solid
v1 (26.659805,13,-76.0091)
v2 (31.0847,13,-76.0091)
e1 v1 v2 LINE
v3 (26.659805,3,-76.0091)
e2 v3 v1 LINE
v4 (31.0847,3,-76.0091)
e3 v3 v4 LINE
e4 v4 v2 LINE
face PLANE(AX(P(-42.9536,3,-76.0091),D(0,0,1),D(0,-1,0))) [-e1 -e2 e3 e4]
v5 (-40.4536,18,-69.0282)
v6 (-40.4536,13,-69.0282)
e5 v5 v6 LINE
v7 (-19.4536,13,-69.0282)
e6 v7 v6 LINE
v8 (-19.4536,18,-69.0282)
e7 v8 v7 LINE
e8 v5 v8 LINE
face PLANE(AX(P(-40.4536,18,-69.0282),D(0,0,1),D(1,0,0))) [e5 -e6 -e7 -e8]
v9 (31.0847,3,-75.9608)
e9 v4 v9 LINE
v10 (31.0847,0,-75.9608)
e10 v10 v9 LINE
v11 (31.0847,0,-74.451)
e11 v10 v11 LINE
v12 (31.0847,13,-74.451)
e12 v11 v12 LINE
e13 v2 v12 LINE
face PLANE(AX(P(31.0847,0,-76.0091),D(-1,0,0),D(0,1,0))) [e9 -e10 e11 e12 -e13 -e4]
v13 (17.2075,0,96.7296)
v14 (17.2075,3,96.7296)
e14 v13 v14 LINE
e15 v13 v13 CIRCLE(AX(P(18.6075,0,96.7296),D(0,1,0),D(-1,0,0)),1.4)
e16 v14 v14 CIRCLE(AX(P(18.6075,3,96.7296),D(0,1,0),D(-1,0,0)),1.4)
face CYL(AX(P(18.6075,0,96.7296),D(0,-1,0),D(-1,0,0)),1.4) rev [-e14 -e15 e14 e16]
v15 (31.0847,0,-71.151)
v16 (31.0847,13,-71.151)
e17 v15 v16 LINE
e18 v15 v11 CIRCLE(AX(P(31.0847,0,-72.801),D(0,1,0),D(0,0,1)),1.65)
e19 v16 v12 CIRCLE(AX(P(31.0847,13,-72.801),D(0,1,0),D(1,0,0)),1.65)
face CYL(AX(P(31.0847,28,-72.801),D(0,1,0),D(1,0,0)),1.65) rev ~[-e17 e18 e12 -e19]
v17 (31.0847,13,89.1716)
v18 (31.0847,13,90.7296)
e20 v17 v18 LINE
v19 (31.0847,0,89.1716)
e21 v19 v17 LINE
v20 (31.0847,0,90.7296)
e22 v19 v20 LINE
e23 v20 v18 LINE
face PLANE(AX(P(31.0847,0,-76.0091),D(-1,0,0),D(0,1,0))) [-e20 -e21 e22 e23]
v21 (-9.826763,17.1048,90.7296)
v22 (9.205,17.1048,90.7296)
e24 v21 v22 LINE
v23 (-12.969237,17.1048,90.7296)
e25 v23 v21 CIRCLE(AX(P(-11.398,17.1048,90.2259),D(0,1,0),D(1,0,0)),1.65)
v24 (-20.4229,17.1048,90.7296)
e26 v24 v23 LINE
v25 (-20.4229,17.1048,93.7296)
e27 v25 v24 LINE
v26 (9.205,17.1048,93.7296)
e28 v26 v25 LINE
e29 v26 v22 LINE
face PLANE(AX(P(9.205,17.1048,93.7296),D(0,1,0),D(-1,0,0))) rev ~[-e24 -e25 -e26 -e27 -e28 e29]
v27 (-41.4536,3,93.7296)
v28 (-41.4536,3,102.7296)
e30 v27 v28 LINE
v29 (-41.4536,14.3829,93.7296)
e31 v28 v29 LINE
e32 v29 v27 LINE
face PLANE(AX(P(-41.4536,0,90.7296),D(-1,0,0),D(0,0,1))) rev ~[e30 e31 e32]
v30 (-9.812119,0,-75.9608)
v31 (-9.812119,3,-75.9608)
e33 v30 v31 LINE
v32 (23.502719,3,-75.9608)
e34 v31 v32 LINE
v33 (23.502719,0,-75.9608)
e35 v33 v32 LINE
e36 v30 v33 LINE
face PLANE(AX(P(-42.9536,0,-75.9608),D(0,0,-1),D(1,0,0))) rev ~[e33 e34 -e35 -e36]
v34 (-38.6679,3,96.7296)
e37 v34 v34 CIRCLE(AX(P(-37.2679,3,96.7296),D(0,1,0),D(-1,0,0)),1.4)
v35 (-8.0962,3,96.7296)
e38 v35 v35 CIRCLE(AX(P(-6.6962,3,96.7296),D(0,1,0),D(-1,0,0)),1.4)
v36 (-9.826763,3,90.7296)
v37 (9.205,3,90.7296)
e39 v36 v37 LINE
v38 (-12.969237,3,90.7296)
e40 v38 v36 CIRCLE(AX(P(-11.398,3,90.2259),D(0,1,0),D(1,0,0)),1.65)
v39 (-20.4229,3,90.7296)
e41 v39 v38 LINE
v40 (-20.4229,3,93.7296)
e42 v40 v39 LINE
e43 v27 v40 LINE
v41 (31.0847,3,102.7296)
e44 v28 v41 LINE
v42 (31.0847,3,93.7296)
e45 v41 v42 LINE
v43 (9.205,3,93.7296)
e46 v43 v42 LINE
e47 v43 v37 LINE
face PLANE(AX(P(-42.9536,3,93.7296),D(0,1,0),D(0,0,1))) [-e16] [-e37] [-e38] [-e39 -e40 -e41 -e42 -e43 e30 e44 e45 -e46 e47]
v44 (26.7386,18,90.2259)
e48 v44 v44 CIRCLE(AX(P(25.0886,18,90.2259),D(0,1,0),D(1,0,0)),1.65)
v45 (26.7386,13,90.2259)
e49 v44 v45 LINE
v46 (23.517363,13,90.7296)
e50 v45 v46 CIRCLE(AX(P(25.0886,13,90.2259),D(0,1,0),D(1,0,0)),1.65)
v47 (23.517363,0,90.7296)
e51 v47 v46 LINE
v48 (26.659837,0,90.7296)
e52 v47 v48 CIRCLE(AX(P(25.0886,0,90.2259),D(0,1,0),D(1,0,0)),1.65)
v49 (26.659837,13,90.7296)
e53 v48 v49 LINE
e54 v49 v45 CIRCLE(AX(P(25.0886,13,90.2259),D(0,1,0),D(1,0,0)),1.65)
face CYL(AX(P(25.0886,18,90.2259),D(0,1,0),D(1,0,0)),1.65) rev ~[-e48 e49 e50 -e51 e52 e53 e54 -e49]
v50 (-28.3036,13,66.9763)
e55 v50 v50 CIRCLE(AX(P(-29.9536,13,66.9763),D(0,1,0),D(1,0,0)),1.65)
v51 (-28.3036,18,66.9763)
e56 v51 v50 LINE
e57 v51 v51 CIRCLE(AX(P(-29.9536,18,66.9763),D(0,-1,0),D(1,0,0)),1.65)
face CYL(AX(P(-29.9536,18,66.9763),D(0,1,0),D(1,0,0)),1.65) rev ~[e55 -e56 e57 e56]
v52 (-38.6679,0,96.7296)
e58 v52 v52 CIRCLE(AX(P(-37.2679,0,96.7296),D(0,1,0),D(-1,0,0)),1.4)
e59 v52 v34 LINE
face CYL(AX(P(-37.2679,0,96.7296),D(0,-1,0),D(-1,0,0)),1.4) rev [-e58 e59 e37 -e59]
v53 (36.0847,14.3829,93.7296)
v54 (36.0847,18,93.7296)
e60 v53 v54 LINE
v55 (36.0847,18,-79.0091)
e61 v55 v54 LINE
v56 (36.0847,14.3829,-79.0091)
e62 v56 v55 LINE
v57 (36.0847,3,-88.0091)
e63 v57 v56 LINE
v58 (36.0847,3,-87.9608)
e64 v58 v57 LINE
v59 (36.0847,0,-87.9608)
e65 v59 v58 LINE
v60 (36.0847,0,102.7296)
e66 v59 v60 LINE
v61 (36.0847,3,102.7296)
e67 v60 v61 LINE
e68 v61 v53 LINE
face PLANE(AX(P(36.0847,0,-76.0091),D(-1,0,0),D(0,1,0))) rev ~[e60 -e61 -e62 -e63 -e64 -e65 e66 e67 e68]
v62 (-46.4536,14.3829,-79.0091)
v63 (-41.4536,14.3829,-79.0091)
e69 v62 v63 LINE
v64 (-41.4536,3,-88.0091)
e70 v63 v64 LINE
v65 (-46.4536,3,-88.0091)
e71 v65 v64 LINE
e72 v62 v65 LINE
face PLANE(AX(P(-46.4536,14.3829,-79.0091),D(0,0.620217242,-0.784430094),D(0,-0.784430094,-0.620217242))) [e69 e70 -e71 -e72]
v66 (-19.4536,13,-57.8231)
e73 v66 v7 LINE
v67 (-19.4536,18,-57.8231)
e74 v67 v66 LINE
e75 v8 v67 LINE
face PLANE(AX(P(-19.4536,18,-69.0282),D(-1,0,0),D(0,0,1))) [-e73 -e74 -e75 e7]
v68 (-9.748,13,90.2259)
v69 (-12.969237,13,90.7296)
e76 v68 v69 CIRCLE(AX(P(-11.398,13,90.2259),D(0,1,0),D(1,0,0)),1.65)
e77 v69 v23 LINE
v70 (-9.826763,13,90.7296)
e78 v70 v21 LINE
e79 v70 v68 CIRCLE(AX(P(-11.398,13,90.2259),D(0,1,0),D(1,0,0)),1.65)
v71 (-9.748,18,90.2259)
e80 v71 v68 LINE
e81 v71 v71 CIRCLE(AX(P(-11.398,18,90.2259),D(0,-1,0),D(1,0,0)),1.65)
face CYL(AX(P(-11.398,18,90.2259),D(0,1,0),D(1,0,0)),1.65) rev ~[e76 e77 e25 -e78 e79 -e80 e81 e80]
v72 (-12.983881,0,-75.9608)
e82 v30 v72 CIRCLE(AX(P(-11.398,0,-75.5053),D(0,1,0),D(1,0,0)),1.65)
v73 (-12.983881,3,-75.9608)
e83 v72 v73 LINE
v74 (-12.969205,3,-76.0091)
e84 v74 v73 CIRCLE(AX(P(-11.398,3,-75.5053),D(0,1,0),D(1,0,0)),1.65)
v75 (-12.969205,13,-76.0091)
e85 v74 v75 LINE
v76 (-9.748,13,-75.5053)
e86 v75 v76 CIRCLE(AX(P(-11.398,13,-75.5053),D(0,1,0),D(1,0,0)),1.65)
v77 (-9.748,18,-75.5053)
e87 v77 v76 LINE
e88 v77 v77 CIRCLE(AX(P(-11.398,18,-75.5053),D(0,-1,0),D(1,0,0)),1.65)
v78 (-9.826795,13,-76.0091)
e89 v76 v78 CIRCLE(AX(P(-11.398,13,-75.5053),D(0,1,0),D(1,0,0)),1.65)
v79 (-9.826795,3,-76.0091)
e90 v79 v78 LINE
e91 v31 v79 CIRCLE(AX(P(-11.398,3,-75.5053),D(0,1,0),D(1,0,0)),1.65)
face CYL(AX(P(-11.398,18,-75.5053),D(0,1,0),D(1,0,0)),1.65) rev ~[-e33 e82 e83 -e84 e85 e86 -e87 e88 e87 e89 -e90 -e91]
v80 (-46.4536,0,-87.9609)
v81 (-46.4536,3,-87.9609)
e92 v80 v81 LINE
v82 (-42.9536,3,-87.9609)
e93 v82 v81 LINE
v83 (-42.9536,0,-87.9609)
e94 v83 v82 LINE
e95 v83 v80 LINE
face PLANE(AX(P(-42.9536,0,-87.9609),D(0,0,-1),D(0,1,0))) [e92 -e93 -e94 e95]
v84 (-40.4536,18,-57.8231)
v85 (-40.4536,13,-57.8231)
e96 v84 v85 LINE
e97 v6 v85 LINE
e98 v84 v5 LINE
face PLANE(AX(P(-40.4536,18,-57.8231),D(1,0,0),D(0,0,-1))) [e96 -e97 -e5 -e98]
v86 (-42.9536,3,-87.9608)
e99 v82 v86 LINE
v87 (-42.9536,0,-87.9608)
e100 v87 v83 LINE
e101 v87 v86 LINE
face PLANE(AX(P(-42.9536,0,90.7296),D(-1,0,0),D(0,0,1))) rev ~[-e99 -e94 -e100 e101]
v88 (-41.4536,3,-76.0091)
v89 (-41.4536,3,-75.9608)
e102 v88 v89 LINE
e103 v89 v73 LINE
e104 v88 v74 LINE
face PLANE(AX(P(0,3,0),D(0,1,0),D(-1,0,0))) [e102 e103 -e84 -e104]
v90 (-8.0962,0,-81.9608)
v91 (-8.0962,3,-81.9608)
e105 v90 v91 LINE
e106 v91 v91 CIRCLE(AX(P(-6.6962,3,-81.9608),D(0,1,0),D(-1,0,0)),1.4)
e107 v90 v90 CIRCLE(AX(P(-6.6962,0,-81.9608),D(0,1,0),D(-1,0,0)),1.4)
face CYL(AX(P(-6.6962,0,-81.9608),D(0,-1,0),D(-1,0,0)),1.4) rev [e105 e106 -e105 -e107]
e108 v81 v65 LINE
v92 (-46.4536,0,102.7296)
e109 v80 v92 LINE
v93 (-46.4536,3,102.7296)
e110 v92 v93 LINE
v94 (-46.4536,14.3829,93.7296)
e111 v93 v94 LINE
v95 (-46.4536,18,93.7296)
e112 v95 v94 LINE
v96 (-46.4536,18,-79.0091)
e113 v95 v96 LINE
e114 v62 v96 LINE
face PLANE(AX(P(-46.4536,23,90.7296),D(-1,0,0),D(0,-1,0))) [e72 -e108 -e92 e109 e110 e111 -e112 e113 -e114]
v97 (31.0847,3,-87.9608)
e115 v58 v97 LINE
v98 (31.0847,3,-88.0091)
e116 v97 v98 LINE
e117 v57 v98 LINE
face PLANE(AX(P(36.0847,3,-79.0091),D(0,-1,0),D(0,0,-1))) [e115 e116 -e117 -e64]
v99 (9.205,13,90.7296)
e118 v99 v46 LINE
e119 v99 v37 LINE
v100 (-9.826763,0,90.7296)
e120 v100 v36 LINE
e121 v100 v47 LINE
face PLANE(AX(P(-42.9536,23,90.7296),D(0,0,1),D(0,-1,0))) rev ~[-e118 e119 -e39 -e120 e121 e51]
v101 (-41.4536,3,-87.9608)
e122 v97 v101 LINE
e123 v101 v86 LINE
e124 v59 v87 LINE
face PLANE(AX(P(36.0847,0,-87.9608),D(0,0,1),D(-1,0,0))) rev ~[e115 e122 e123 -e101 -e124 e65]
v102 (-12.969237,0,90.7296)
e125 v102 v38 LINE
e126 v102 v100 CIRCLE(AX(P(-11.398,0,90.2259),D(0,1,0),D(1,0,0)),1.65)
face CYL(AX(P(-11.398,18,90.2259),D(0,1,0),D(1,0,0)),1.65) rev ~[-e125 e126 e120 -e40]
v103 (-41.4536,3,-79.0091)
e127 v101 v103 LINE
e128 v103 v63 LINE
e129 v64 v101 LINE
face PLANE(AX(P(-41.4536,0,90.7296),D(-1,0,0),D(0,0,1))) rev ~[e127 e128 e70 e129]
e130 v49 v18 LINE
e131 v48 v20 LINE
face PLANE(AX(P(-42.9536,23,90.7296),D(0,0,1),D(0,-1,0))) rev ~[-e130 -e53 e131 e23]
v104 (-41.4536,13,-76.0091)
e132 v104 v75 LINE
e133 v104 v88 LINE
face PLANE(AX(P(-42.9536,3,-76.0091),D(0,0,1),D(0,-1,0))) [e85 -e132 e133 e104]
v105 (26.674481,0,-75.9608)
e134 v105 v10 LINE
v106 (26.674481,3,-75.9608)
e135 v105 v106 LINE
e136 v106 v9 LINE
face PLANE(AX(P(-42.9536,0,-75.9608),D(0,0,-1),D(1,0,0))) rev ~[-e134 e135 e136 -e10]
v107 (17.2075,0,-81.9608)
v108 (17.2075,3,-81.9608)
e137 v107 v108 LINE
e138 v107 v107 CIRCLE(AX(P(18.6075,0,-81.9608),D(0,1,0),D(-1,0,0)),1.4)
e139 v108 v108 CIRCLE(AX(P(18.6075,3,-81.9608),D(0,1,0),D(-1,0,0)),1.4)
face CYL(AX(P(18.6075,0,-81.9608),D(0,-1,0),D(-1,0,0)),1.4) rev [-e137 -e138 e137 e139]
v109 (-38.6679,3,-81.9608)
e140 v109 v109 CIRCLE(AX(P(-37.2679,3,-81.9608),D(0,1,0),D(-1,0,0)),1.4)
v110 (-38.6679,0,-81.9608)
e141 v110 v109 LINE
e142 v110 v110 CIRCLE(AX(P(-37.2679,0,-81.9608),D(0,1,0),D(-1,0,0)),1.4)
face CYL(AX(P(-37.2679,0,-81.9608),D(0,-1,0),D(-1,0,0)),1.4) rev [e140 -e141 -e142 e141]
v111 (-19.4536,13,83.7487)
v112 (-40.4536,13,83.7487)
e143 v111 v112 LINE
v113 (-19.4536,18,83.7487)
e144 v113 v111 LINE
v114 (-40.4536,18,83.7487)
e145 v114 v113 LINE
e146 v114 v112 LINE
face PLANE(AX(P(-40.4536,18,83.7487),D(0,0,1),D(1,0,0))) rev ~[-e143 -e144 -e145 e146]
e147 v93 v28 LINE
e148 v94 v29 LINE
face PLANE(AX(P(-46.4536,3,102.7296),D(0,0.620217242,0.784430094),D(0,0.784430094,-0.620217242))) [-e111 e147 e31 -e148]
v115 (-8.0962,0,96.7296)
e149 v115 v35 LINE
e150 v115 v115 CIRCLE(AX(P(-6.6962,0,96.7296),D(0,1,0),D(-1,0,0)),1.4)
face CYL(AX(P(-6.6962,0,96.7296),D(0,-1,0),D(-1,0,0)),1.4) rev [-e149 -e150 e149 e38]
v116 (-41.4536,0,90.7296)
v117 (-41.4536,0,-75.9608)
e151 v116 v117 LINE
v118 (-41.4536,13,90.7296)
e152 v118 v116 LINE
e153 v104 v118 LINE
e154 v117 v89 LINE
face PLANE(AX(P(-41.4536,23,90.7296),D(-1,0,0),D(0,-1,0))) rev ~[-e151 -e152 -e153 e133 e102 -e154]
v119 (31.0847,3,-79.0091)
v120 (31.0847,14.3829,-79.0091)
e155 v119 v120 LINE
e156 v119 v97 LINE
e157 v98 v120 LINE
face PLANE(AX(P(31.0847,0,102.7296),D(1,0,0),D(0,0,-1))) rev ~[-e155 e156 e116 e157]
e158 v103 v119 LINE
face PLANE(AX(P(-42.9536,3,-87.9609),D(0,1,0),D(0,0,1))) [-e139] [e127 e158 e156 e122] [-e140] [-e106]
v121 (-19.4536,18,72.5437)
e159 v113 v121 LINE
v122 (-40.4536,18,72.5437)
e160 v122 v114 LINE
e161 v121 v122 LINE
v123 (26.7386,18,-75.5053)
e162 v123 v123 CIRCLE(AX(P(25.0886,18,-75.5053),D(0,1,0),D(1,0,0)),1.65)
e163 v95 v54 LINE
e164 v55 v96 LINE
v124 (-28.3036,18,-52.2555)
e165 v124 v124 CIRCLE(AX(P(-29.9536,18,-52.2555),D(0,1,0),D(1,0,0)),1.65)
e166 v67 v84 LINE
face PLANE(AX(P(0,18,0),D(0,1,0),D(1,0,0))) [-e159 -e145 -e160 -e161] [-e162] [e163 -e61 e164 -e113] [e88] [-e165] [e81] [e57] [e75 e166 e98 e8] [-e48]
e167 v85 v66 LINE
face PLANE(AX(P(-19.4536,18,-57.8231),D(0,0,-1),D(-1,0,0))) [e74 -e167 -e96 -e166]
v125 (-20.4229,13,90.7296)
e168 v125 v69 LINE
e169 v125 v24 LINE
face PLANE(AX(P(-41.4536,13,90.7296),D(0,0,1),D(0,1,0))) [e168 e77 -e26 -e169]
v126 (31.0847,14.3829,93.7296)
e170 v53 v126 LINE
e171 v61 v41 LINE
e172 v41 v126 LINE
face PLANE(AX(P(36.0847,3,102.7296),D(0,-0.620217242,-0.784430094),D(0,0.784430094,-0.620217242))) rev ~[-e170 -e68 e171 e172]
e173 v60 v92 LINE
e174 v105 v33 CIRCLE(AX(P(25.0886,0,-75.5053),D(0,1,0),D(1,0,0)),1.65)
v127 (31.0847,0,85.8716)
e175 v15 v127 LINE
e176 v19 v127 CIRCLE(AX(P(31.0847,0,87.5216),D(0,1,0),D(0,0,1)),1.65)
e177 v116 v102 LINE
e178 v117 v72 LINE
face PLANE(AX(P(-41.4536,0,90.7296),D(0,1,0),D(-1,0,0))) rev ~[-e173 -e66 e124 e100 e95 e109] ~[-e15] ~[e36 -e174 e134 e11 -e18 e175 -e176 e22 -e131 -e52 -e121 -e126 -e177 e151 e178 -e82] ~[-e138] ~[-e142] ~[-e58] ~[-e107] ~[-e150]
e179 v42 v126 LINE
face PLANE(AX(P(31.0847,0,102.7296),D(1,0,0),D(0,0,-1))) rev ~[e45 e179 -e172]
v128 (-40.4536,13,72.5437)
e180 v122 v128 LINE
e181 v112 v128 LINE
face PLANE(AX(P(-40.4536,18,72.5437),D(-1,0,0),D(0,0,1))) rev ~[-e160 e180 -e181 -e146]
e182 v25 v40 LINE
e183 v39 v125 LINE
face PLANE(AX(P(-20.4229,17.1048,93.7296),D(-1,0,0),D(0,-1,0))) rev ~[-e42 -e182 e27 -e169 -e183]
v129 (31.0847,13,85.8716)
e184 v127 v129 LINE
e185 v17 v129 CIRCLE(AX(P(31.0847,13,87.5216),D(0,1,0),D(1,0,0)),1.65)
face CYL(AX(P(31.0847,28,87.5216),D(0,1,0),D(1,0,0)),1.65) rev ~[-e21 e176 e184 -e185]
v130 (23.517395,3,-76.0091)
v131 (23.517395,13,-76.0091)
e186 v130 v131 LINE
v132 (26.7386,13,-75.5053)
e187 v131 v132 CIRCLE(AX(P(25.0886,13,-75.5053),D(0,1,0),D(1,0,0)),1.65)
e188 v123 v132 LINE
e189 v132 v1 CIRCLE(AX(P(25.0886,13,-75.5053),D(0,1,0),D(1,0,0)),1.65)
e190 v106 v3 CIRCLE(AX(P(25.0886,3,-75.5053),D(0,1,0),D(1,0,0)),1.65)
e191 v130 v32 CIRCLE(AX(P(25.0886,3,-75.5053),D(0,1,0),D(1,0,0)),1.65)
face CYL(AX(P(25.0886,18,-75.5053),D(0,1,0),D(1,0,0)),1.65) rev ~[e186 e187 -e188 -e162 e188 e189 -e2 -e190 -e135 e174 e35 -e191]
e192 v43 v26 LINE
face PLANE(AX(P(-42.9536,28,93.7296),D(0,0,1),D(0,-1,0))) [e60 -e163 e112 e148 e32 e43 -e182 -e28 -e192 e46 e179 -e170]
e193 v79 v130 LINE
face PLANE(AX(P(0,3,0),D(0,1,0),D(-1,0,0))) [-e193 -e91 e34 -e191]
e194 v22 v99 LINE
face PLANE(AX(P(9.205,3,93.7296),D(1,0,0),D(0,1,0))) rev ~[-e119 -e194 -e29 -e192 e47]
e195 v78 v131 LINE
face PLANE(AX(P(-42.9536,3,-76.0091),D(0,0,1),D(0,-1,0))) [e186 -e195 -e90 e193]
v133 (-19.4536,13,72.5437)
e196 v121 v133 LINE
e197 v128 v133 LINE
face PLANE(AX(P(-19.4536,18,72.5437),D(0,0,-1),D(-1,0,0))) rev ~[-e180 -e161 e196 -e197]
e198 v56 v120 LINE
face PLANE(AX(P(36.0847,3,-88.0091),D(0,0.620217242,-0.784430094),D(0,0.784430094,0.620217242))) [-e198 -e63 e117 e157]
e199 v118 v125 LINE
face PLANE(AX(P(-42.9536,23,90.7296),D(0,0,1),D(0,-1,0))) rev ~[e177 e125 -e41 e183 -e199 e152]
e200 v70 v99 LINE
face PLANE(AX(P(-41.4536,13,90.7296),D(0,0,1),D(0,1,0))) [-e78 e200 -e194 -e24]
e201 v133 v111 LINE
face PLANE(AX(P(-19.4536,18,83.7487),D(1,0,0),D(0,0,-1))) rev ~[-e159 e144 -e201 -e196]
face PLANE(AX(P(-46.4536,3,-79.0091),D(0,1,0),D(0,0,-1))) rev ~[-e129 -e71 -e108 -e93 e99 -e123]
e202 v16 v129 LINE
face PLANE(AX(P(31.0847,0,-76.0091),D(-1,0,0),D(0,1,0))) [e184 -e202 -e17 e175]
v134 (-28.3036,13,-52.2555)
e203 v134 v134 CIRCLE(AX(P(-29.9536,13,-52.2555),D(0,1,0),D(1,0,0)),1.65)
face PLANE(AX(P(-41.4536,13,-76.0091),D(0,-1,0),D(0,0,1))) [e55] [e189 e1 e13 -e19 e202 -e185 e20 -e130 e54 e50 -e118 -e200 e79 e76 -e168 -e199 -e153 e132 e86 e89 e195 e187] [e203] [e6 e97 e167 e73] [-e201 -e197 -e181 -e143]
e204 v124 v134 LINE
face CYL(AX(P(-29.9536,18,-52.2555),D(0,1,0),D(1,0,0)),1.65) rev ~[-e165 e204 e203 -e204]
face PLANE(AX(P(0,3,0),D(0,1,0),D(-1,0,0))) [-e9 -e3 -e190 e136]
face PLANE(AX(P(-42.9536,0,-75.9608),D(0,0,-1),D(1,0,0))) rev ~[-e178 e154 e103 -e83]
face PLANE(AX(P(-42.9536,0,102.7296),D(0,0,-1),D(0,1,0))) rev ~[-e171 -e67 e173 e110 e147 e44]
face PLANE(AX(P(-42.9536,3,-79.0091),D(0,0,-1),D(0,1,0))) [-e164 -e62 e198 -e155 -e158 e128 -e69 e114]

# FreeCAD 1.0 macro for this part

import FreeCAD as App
import Part
import Sketcher

doc = App.newDocument("Part")
params = doc.addObject("Spreadsheet::Sheet", "Params")
for row, (alias, value) in enumerate([
    ("sketch1_diameter", "2.8 mm"),
    ("sketch1_height", "12 mm"),
    ("pad1_length", "3 mm"),
    ("sketch2_height", "3 mm"),
    ("pad2_length", "25 mm"),
    ("sketch3_height", "5 mm"),
    ("pad3_length", "168 mm"),
    ("pocket1_length", "20 mm"),
    ("sketch5_height", "9 mm"),
    ("pad4_length", "5 mm"),
    ("sketch6_height", "9 mm"),
    ("pad5_length", "5 mm"),
    ("sketch7_width", "5 mm"),
    ("sketch7_height", "23 mm"),
    ("pad6_length", "168 mm"),
    ("sketch8_width", "3 mm"),
    ("sketch8_width2", "23 mm"),
    ("sketch8_width3", "25 mm"),
    ("sketch8_height", "12 mm"),
    ("sketch8_height2", "9 mm"),
    ("pad7_length", "3.5 mm"),
    ("sketch9_height", "9 mm"),
    ("pad8_length", "5 mm"),
    ("sketch10_width", "5 mm"),
    ("sketch10_height", "23 mm"),
    ("pad9_length", "168 mm"),
    ("sketch11_diameter", "3.3 mm"),
    ("pocket2_length", "168 mm"),
    ("sketch12_diameter", "3.3 mm"),
    ("pocket3_length", "10 mm"),
    ("sketch13_width", "5 mm"),
    ("pad10_length", "75 mm"),
    ("sketch14_diameter", "3.3 mm"),
    ("pocket4_length", "75 mm"),
    ("sketch15_diameter", "3.3 mm"),
    ("sketch15_width", "21 mm"),
    ("pocket5_length", "75 mm"),
], start=1):
    params.set(f"A{row}", alias)
    params.set(f"B{row}", "=" + value)
    params.setAlias(f"B{row}", alias)

body = doc.addObject("PartDesign::Body", "Body")
body.AllowCompound = True

sketch1 = body.newObject("Sketcher::SketchObject", "Sketch")
sketch1.AttachmentSupport = (doc.getObject("XZ_Plane"), [""])
sketch1.MapMode = "FlatFace"
sketch1.addGeometry([
    Part.LineSegment(App.Vector(-43, -76, 0), App.Vector(36.1, -76, 0)),
    Part.LineSegment(App.Vector(36.1, -76, 0), App.Vector(36.1, -88, 0)),
    Part.LineSegment(App.Vector(36.1, -88, 0), App.Vector(-43, -88, 0)),
    Part.LineSegment(App.Vector(-43, -88, 0), App.Vector(-43, -76, 0)),
    Part.Circle(App.Vector(18.6, -82, 0), App.Vector(0, 0, 1), 1.4),
    Part.Circle(App.Vector(-6.7, -82, 0), App.Vector(0, 0, 1), 1.4),
    Part.Circle(App.Vector(-37.3, -82, 0), App.Vector(0, 0, 1), 1.4),
    Part.LineSegment(App.Vector(36.1, 102.7, 0), App.Vector(36.1, 90.7, 0)),
    Part.LineSegment(App.Vector(36.1, 90.7, 0), App.Vector(-43, 90.7, 0)),
    Part.LineSegment(App.Vector(-43, 90.7, 0), App.Vector(-43, 102.7, 0)),
    Part.LineSegment(App.Vector(-43, 102.7, 0), App.Vector(36.1, 102.7, 0)),
    Part.Circle(App.Vector(18.6, 96.7, 0), App.Vector(0, 0, 1), 1.4),
    Part.Circle(App.Vector(-6.7, 96.7, 0), App.Vector(0, 0, 1), 1.4),
    Part.Circle(App.Vector(-37.3, 96.7, 0), App.Vector(0, 0, 1), 1.4),
], False)
sketch1.addConstraint([
    Sketcher.Constraint("Coincident", 0, 2, 1, 1),
    Sketcher.Constraint("Coincident", 1, 2, 2, 1),
    Sketcher.Constraint("Coincident", 2, 2, 3, 1),
    Sketcher.Constraint("Coincident", 3, 2, 0, 1),
    Sketcher.Constraint("Coincident", 7, 2, 8, 1),
    Sketcher.Constraint("Coincident", 8, 2, 9, 1),
    Sketcher.Constraint("Coincident", 9, 2, 10, 1),
    Sketcher.Constraint("Coincident", 10, 2, 7, 1),
    Sketcher.Constraint("Horizontal", 0),
    Sketcher.Constraint("Vertical", 1),
    Sketcher.Constraint("Horizontal", 2),
    Sketcher.Constraint("Vertical", 3),
    Sketcher.Constraint("Vertical", 7),
    Sketcher.Constraint("Horizontal", 8),
    Sketcher.Constraint("Vertical", 9),
    Sketcher.Constraint("Horizontal", 10),
    Sketcher.Constraint("Equal", 4, 5),
    Sketcher.Constraint("Equal", 5, 6),
    Sketcher.Constraint("Equal", 6, 11),
    Sketcher.Constraint("Equal", 11, 12),
    Sketcher.Constraint("Equal", 12, 13),
    Sketcher.Constraint("Horizontal", 4, 3, 5, 3),
    Sketcher.Constraint("Horizontal", 5, 3, 6, 3),
    Sketcher.Constraint("Horizontal", 11, 3, 12, 3),
    Sketcher.Constraint("Horizontal", 12, 3, 13, 3),
    Sketcher.Constraint("Vertical", 4, 3, 11, 3),
    Sketcher.Constraint("Vertical", 5, 3, 12, 3),
    Sketcher.Constraint("Vertical", 6, 3, 13, 3),
    Sketcher.Constraint("Vertical", 1, 2, 7, 2),
    Sketcher.Constraint("Vertical", 3, 2, 8, 2),
    Sketcher.Constraint("Equal", 3, 7),
    Sketcher.Constraint("Diameter", 4, 2.8),
    Sketcher.Constraint("DistanceY", 1, 2, 1, 1, 12.0),
    Sketcher.Constraint("DistanceY", 4, 3, 0, 2, 6.0),
    Sketcher.Constraint("DistanceY", 7, 2, 11, 3, 6.0),
    Sketcher.Constraint("DistanceX", 0, 1, 0, 2, 79.0383),
    Sketcher.Constraint("DistanceX", 6, 3, -1, 1, 37.268),
    Sketcher.Constraint("DistanceX", 5, 3, 0, 2, 42.781),
    Sketcher.Constraint("DistanceX", 2, 2, 4, 3, 61.561),
    Sketcher.Constraint("DistanceX", -1, 1, 4, 3, 18.6075),
    Sketcher.Constraint("DistanceY", 4, 3, -1, 1, 81.9608),
    Sketcher.Constraint("DistanceY", -1, 1, 11, 3, 96.7296),
])
sketch1.setExpression("Constraints[31]", "Params.sketch1_diameter")
sketch1.setExpression("Constraints[32]", "Params.sketch1_height")
pad1 = body.newObject("PartDesign::Pad", "Pad")
pad1.Profile = sketch1
pad1.setExpression("Length", "Params.pad1_length")
pad1.Reversed = True

sketch2 = body.newObject("Sketcher::SketchObject", "Sketch001")
sketch2.AttachmentSupport = (doc.getObject("XZ_Plane"), [""])
sketch2.MapMode = "FlatFace"
sketch2.AttachmentOffset = App.Placement(App.Vector(0, 0, -3), App.Rotation())
sketch2.addGeometry([
    Part.LineSegment(App.Vector(36.1, 93.7, 0), App.Vector(36.1, 90.7, 0)),
    Part.LineSegment(App.Vector(36.1, 90.7, 0), App.Vector(-43, 90.7, 0)),
    Part.LineSegment(App.Vector(-43, 90.7, 0), App.Vector(-43, 93.7, 0)),
    Part.LineSegment(App.Vector(-43, 93.7, 0), App.Vector(36.1, 93.7, 0)),
    Part.LineSegment(App.Vector(-43, -79, 0), App.Vector(-43, -76, 0)),
    Part.LineSegment(App.Vector(-43, -76, 0), App.Vector(36.1, -76, 0)),
    Part.LineSegment(App.Vector(36.1, -76, 0), App.Vector(36.1, -79, 0)),
    Part.LineSegment(App.Vector(36.1, -79, 0), App.Vector(-43, -79, 0)),
], False)
sketch2.addConstraint([
    Sketcher.Constraint("Coincident", 0, 2, 1, 1),
    Sketcher.Constraint("Coincident", 1, 2, 2, 1),
    Sketcher.Constraint("Coincident", 2, 2, 3, 1),
    Sketcher.Constraint("Coincident", 3, 2, 0, 1),
    Sketcher.Constraint("Coincident", 4, 2, 5, 1),
    Sketcher.Constraint("Coincident", 5, 2, 6, 1),
    Sketcher.Constraint("Coincident", 6, 2, 7, 1),
    Sketcher.Constraint("Coincident", 7, 2, 4, 1),
    Sketcher.Constraint("Vertical", 0),
    Sketcher.Constraint("Horizontal", 1),
    Sketcher.Constraint("Vertical", 2),
    Sketcher.Constraint("Horizontal", 3),
    Sketcher.Constraint("Vertical", 4),
    Sketcher.Constraint("Horizontal", 5),
    Sketcher.Constraint("Vertical", 6),
    Sketcher.Constraint("Horizontal", 7),
    Sketcher.Constraint("Vertical", 2, 2, 4, 2),
    Sketcher.Constraint("Vertical", 3, 2, 5, 2),
    Sketcher.Constraint("Equal", 2, 4),
    Sketcher.Constraint("DistanceY", 0, 2, 0, 1, 3.0),
    Sketcher.Constraint("DistanceX", 1, 2, 1, 1, 79.0383),
    Sketcher.Constraint("DistanceY", 4, 2, -1, 1, 76.009),
    Sketcher.Constraint("DistanceX", -1, 1, 0, 2, 36.0847),
    Sketcher.Constraint("DistanceY", -1, 1, 0, 2, 90.7296),
])
sketch2.setExpression("Constraints[19]", "Params.sketch2_height")
pad2 = body.newObject("PartDesign::Pad", "Pad001")
pad2.Profile = sketch2
pad2.setExpression("Length", "Params.pad2_length")
pad2.Reversed = True

sketch3 = body.newObject("Sketcher::SketchObject", "Sketch002")
sketch3.AttachmentSupport = (doc.getObject("XY_Plane"), [""])
sketch3.MapMode = "FlatFace"
sketch3.AttachmentOffset = App.Placement(App.Vector(0, 0, -76.0091), App.Rotation())
sketch3.addGeometry([
    Part.LineSegment(App.Vector(-43, 28, 0), App.Vector(-43, 23, 0)),
    Part.LineSegment(App.Vector(-43, 23, 0), App.Vector(36, 23, 0)),
    Part.LineSegment(App.Vector(36, 23, 0), App.Vector(36, 28, 0)),
    Part.LineSegment(App.Vector(36, 28, 0), App.Vector(-43, 28, 0)),
], False)
sketch3.addConstraint([
    Sketcher.Constraint("Coincident", 0, 2, 1, 1),
    Sketcher.Constraint("Coincident", 1, 2, 2, 1),
    Sketcher.Constraint("Coincident", 2, 2, 3, 1),
    Sketcher.Constraint("Coincident", 3, 2, 0, 1),
    Sketcher.Constraint("Vertical", 0),
    Sketcher.Constraint("Horizontal", 1),
    Sketcher.Constraint("Vertical", 2),
    Sketcher.Constraint("Horizontal", 3),
    Sketcher.Constraint("DistanceY", 0, 2, 0, 1, 5.0),
    Sketcher.Constraint("DistanceY", -1, 1, 0, 2, 23.0),
    Sketcher.Constraint("DistanceX", 1, 1, 1, 2, 79.0383),
    Sketcher.Constraint("DistanceX", 0, 2, -1, 1, 42.9536),
])
sketch3.setExpression("Constraints[8]", "Params.sketch3_height")
pad3 = body.newObject("PartDesign::Pad", "Pad002")
pad3.Profile = sketch3
pad3.setExpression("Length", "Params.pad3_length")

sketch4 = body.newObject("Sketcher::SketchObject", "Sketch003")
sketch4.AttachmentSupport = (doc.getObject("XY_Plane"), [""])
sketch4.MapMode = "FlatFace"
sketch4.AttachmentOffset = App.Placement(App.Vector(0, 0, 93.7296), App.Rotation())
sketch4.addGeometry([
    Part.LineSegment(App.Vector(-20, 3, 0), App.Vector(9, 3, 0)),
    Part.LineSegment(App.Vector(9, 3, 0), App.Vector(9, 17, 0)),
    Part.LineSegment(App.Vector(9, 17, 0), App.Vector(-20, 17, 0)),
    Part.LineSegment(App.Vector(-20, 17, 0), App.Vector(-20, 3, 0)),
], False)
sketch4.addConstraint([
    Sketcher.Constraint("Coincident", 0, 2, 1, 1),
    Sketcher.Constraint("Coincident", 1, 2, 2, 1),
    Sketcher.Constraint("Coincident", 2, 2, 3, 1),
    Sketcher.Constraint("Coincident", 3, 2, 0, 1),
    Sketcher.Constraint("Horizontal", 0),
    Sketcher.Constraint("Vertical", 1),
    Sketcher.Constraint("Horizontal", 2),
    Sketcher.Constraint("Vertical", 3),
    Sketcher.Constraint("DistanceY", -1, 1, 0, 2, 3.0),
    Sketcher.Constraint("DistanceX", 0, 1, 0, 2, 29.628),
    Sketcher.Constraint("DistanceY", 1, 1, 1, 2, 14.1048),
    Sketcher.Constraint("DistanceX", -1, 1, 0, 2, 9.205),
])
pocket1 = body.newObject("PartDesign::Pocket", "Pocket")
pocket1.Profile = sketch4
pocket1.setExpression("Length", "Params.pocket1_length")

sketch5 = body.newObject("Sketcher::SketchObject", "Sketch004")
sketch5.AttachmentSupport = (doc.getObject("YZ_Plane"), [""])
sketch5.MapMode = "FlatFace"
sketch5.AttachmentOffset = App.Placement(App.Vector(0, 0, 36.0847), App.Rotation())
sketch5.addGeometry([
    Part.LineSegment(App.Vector(14, 94, 0), App.Vector(3, 103, 0)),
    Part.LineSegment(App.Vector(3, 103, 0), App.Vector(3, 94, 0)),
    Part.LineSegment(App.Vector(3, 94, 0), App.Vector(14, 94, 0)),
], False)
sketch5.addConstraint([
    Sketcher.Constraint("Coincident", 0, 2, 1, 1),
    Sketcher.Constraint("Coincident", 1, 2, 2, 1),
    Sketcher.Constraint("Coincident", 2, 2, 0, 1),
    Sketcher.Constraint("Vertical", 1),
    Sketcher.Constraint("Horizontal", 2),
    Sketcher.Constraint("DistanceY", 1, 2, 1, 1, 9.0),
    Sketcher.Constraint("DistanceX", -1, 1, 0, 2, 3.0),
    Sketcher.Constraint("DistanceX", 2, 1, 2, 2, 11.383),
    Sketcher.Constraint("DistanceY", -1, 1, 0, 2, 102.7296),
])
sketch5.setExpression("Constraints[5]", "Params.sketch5_height")
pad4 = body.newObject("PartDesign::Pad", "Pad003")
pad4.Profile = sketch5
pad4.setExpression("Length", "Params.pad4_length")
pad4.Reversed = True

sketch6 = body.newObject("Sketcher::SketchObject", "Sketch005")
sketch6.AttachmentSupport = (doc.getObject("YZ_Plane"), [""])
sketch6.MapMode = "FlatFace"
sketch6.AttachmentOffset = App.Placement(App.Vector(0, 0, 36.0847), App.Rotation())
sketch6.addGeometry([
    Part.LineSegment(App.Vector(3, -79, 0), App.Vector(3, -88, 0)),
    Part.LineSegment(App.Vector(3, -88, 0), App.Vector(14, -79, 0)),
    Part.LineSegment(App.Vector(14, -79, 0), App.Vector(3, -79, 0)),
], False)
sketch6.addConstraint([
    Sketcher.Constraint("Coincident", 0, 2, 1, 1),
    Sketcher.Constraint("Coincident", 1, 2, 2, 1),
    Sketcher.Constraint("Coincident", 2, 2, 0, 1),
    Sketcher.Constraint("Vertical", 0),
    Sketcher.Constraint("Horizontal", 2),
    Sketcher.Constraint("DistanceY", 0, 2, 0, 1, 9.0),
    Sketcher.Constraint("DistanceX", -1, 1, 0, 2, 3.0),
    Sketcher.Constraint("DistanceX", 2, 2, 2, 1, 11.383),
    Sketcher.Constraint("DistanceY", 0, 2, -1, 1, 88.009),
])
sketch6.setExpression("Constraints[5]", "Params.sketch6_height")
pad5 = body.newObject("PartDesign::Pad", "Pad004")
pad5.Profile = sketch6
pad5.setExpression("Length", "Params.pad5_length")
pad5.Reversed = True

sketch7 = body.newObject("Sketcher::SketchObject", "Sketch006")
sketch7.AttachmentSupport = (doc.getObject("XY_Plane"), [""])
sketch7.MapMode = "FlatFace"
sketch7.AttachmentOffset = App.Placement(App.Vector(0, 0, -76.0091), App.Rotation())
sketch7.addGeometry([
    Part.LineSegment(App.Vector(31.1, 0, 0), App.Vector(36.1, 0, 0)),
    Part.LineSegment(App.Vector(36.1, 0, 0), App.Vector(36.1, 23, 0)),
    Part.LineSegment(App.Vector(36.1, 23, 0), App.Vector(31.1, 23, 0)),
    Part.LineSegment(App.Vector(31.1, 23, 0), App.Vector(31.1, 0, 0)),
], False)
sketch7.addConstraint([
    Sketcher.Constraint("Coincident", 0, 2, 1, 1),
    Sketcher.Constraint("Coincident", 1, 2, 2, 1),
    Sketcher.Constraint("Coincident", 2, 2, 3, 1),
    Sketcher.Constraint("Coincident", 3, 2, 0, 1),
    Sketcher.Constraint("Horizontal", 0),
    Sketcher.Constraint("Vertical", 1),
    Sketcher.Constraint("Horizontal", 2),
    Sketcher.Constraint("Vertical", 3),
    Sketcher.Constraint("PointOnObject", 0, 2, -1),
    Sketcher.Constraint("DistanceX", 0, 1, 0, 2, 5.0),
    Sketcher.Constraint("DistanceY", 1, 1, 1, 2, 23.0),
    Sketcher.Constraint("DistanceX", -1, 1, 0, 2, 36.0847),
])
sketch7.setExpression("Constraints[9]", "Params.sketch7_width")
sketch7.setExpression("Constraints[10]", "Params.sketch7_height")
pad6 = body.newObject("PartDesign::Pad", "Pad005")
pad6.Profile = sketch7
pad6.setExpression("Length", "Params.pad6_length")

sketch8 = body.newObject("Sketcher::SketchObject", "Sketch007")
sketch8.AttachmentSupport = (doc.getObject("YZ_Plane"), [""])
sketch8.MapMode = "FlatFace"
sketch8.AttachmentOffset = App.Placement(App.Vector(0, 0, -42.9536), App.Rotation())
sketch8.addGeometry([
    Part.LineSegment(App.Vector(3, -88, 0), App.Vector(0, -88, 0)),
    Part.LineSegment(App.Vector(0, -88, 0), App.Vector(0, -76, 0)),
    Part.LineSegment(App.Vector(0, -76, 0), App.Vector(23, -76, 0)),
    Part.LineSegment(App.Vector(23, -76, 0), App.Vector(23, 90.7, 0)),
    Part.LineSegment(App.Vector(23, 90.7, 0), App.Vector(0, 90.7, 0)),
    Part.LineSegment(App.Vector(0, 90.7, 0), App.Vector(0, 102.7, 0)),
    Part.LineSegment(App.Vector(0, 102.7, 0), App.Vector(3, 102.7, 0)),
    Part.LineSegment(App.Vector(3, 102.7, 0), App.Vector(3, 93.7, 0)),
    Part.LineSegment(App.Vector(3, 93.7, 0), App.Vector(28, 93.7, 0)),
    Part.LineSegment(App.Vector(28, 93.7, 0), App.Vector(28, -79, 0)),
    Part.LineSegment(App.Vector(28, -79, 0), App.Vector(3, -79, 0)),
    Part.LineSegment(App.Vector(3, -79, 0), App.Vector(3, -88, 0)),
], False)
sketch8.addConstraint([
    Sketcher.Constraint("Coincident", 0, 2, 1, 1),
    Sketcher.Constraint("Coincident", 1, 2, 2, 1),
    Sketcher.Constraint("Coincident", 2, 2, 3, 1),
    Sketcher.Constraint("Coincident", 3, 2, 4, 1),
    Sketcher.Constraint("Coincident", 4, 2, 5, 1),
    Sketcher.Constraint("Coincident", 5, 2, 6, 1),
    Sketcher.Constraint("Coincident", 6, 2, 7, 1),
    Sketcher.Constraint("Coincident", 7, 2, 8, 1),
    Sketcher.Constraint("Coincident", 8, 2, 9, 1),
    Sketcher.Constraint("Coincident", 9, 2, 10, 1),
    Sketcher.Constraint("Coincident", 10, 2, 11, 1),
    Sketcher.Constraint("Coincident", 11, 2, 0, 1),
    Sketcher.Constraint("Horizontal", 0),
    Sketcher.Constraint("Vertical", 1),
    Sketcher.Constraint("Horizontal", 2),
    Sketcher.Constraint("Vertical", 3),
    Sketcher.Constraint("Horizontal", 4),
    Sketcher.Constraint("Vertical", 5),
    Sketcher.Constraint("Horizontal", 6),
    Sketcher.Constraint("Vertical", 7),
    Sketcher.Constraint("Horizontal", 8),
    Sketcher.Constraint("Vertical", 9),
    Sketcher.Constraint("Horizontal", 10),
    Sketcher.Constraint("Vertical", 11),
    Sketcher.Constraint("PointOnObject", 0, 2, -2),
    Sketcher.Constraint("PointOnObject", 4, 2, -2),
    Sketcher.Constraint("Vertical", 7, 2, 10, 2),
    Sketcher.Constraint("DistanceX", 0, 2, 0, 1, 3.0),
    Sketcher.Constraint("DistanceX", 2, 1, 2, 2, 23.0),
    Sketcher.Constraint("DistanceX", 8, 1, 8, 2, 25.0),
    Sketcher.Constraint("DistanceY", 5, 1, 5, 2, 12.0),
    Sketcher.Constraint("DistanceY", 7, 2, 7, 1, 9.0),
    Sketcher.Constraint("DistanceY", 9, 2, 2, 2, 3.0),
    Sketcher.Constraint("DistanceY", 1, 1, 1, 2, 11.9518),
    Sketcher.Constraint("DistanceY", 3, 1, 3, 2, 166.7387),
    Sketcher.Constraint("DistanceY", 0, 2, -1, 1, 87.961),
])
sketch8.setExpression("Constraints[27]", "Params.sketch8_width")
sketch8.setExpression("Constraints[28]", "Params.sketch8_width2")
sketch8.setExpression("Constraints[29]", "Params.sketch8_width3")
sketch8.setExpression("Constraints[30]", "Params.sketch8_height")
sketch8.setExpression("Constraints[31]", "Params.sketch8_height2")
pad7 = body.newObject("PartDesign::Pad", "Pad006")
pad7.Profile = sketch8
pad7.setExpression("Length", "Params.pad7_length")
pad7.Reversed = True

sketch9 = body.newObject("Sketcher::SketchObject", "Sketch008")
sketch9.AttachmentSupport = (doc.getObject("YZ_Plane"), [""])
sketch9.MapMode = "FlatFace"
sketch9.AttachmentOffset = App.Placement(App.Vector(0, 0, -46.4536), App.Rotation())
sketch9.addGeometry([
    Part.LineSegment(App.Vector(3, -79, 0), App.Vector(14, -79, 0)),
    Part.LineSegment(App.Vector(14, -79, 0), App.Vector(3, -88, 0)),
    Part.LineSegment(App.Vector(3, -88, 0), App.Vector(3, -79, 0)),
    Part.LineSegment(App.Vector(3, 94, 0), App.Vector(3, 103, 0)),
    Part.LineSegment(App.Vector(3, 103, 0), App.Vector(14, 94, 0)),
    Part.LineSegment(App.Vector(14, 94, 0), App.Vector(3, 94, 0)),
], False)
sketch9.addConstraint([
    Sketcher.Constraint("Coincident", 0, 2, 1, 1),
    Sketcher.Constraint("Coincident", 1, 2, 2, 1),
    Sketcher.Constraint("Coincident", 2, 2, 0, 1),
    Sketcher.Constraint("Coincident", 3, 2, 4, 1),
    Sketcher.Constraint("Coincident", 4, 2, 5, 1),
    Sketcher.Constraint("Coincident", 5, 2, 3, 1),
    Sketcher.Constraint("Horizontal", 0),
    Sketcher.Constraint("Vertical", 2),
    Sketcher.Constraint("Vertical", 3),
    Sketcher.Constraint("Horizontal", 5),
    Sketcher.Constraint("Vertical", 2, 2, 3, 2),
    Sketcher.Constraint("Vertical", 0, 2, 4, 2),
    Sketcher.Constraint("Equal", 2, 3),
    Sketcher.Constraint("DistanceY", 2, 1, 2, 2, 9.0),
    Sketcher.Constraint("DistanceX", -1, 1, 1, 2, 3.0),
    Sketcher.Constraint("DistanceX", 0, 1, 0, 2, 11.383),
    Sketcher.Constraint("DistanceY", 0, 2, -1, 1, 79.009),
    Sketcher.Constraint("DistanceY", -1, 1, 3, 2, 102.7296),
])
sketch9.setExpression("Constraints[13]", "Params.sketch9_height")
pad8 = body.newObject("PartDesign::Pad", "Pad007")
pad8.Profile = sketch9
pad8.setExpression("Length", "Params.pad8_length")

sketch10 = body.newObject("Sketcher::SketchObject", "Sketch009")
sketch10.AttachmentSupport = (doc.getObject("XY_Plane"), [""])
sketch10.MapMode = "FlatFace"
sketch10.AttachmentOffset = App.Placement(App.Vector(0, 0, 90.7296), App.Rotation())
sketch10.addGeometry([
    Part.LineSegment(App.Vector(-46, 0, 0), App.Vector(-46, 23, 0)),
    Part.LineSegment(App.Vector(-46, 23, 0), App.Vector(-41, 23, 0)),
    Part.LineSegment(App.Vector(-41, 23, 0), App.Vector(-41, 0, 0)),
    Part.LineSegment(App.Vector(-41, 0, 0), App.Vector(-46, 0, 0)),
], False)
sketch10.addConstraint([
    Sketcher.Constraint("Coincident", 0, 2, 1, 1),
    Sketcher.Constraint("Coincident", 1, 2, 2, 1),
    Sketcher.Constraint("Coincident", 2, 2, 3, 1),
    Sketcher.Constraint("Coincident", 3, 2, 0, 1),
    Sketcher.Constraint("Vertical", 0),
    Sketcher.Constraint("Horizontal", 1),
    Sketcher.Constraint("Vertical", 2),
    Sketcher.Constraint("Horizontal", 3),
    Sketcher.Constraint("PointOnObject", 2, 2, -1),
    Sketcher.Constraint("DistanceX", 1, 1, 1, 2, 5.0),
    Sketcher.Constraint("DistanceY", 0, 1, 0, 2, 23.0),
    Sketcher.Constraint("DistanceX", 0, 2, -1, 1, 46.4536),
])
sketch10.setExpression("Constraints[9]", "Params.sketch10_width")
sketch10.setExpression("Constraints[10]", "Params.sketch10_height")
pad9 = body.newObject("PartDesign::Pad", "Pad008")
pad9.Profile = sketch10
pad9.setExpression("Length", "Params.pad9_length")
pad9.Reversed = True

sketch11 = body.newObject("Sketcher::SketchObject", "Sketch010")
sketch11.AttachmentSupport = (doc.getObject("XZ_Plane"), [""])
sketch11.MapMode = "FlatFace"
sketch11.AttachmentOffset = App.Placement(App.Vector(0, 0, -28), App.Rotation())
sketch11.addGeometry([
    Part.Circle(App.Vector(31.1, -72.8, 0), App.Vector(0, 0, 1), 1.6),
    Part.Circle(App.Vector(31.1, 87.5, 0), App.Vector(0, 0, 1), 1.6),
    Part.Circle(App.Vector(-37.3, -72.8, 0), App.Vector(0, 0, 1), 1.6),
    Part.Circle(App.Vector(-6.3, -72.8, 0), App.Vector(0, 0, 1), 1.6),
    Part.Circle(App.Vector(-37.3, 87.5, 0), App.Vector(0, 0, 1), 1.6),
    Part.Circle(App.Vector(-6.3, 87.5, 0), App.Vector(0, 0, 1), 1.6),
], False)
sketch11.addConstraint([
    Sketcher.Constraint("Equal", 0, 1),
    Sketcher.Constraint("Equal", 1, 2),
    Sketcher.Constraint("Equal", 2, 3),
    Sketcher.Constraint("Equal", 3, 4),
    Sketcher.Constraint("Equal", 4, 5),
    Sketcher.Constraint("Horizontal", 0, 3, 2, 3),
    Sketcher.Constraint("Horizontal", 2, 3, 3, 3),
    Sketcher.Constraint("Horizontal", 1, 3, 4, 3),
    Sketcher.Constraint("Horizontal", 4, 3, 5, 3),
    Sketcher.Constraint("Vertical", 0, 3, 1, 3),
    Sketcher.Constraint("Vertical", 2, 3, 4, 3),
    Sketcher.Constraint("Vertical", 3, 3, 5, 3),
    Sketcher.Constraint("Diameter", 0, 3.3),
    Sketcher.Constraint("DistanceX", 2, 3, 3, 3, 30.99),
    Sketcher.Constraint("DistanceY", 0, 3, -1, 1, 72.801),
    Sketcher.Constraint("DistanceX", 2, 3, -1, 1, 37.268),
    Sketcher.Constraint("DistanceX", -1, 1, 0, 3, 31.0847),
    Sketcher.Constraint("DistanceY", -1, 1, 1, 3, 87.5216),
])
sketch11.setExpression("Constraints[12]", "Params.sketch11_diameter")
pocket2 = body.newObject("PartDesign::Pocket", "Pocket001")
pocket2.Profile = sketch11
pocket2.setExpression("Length", "Params.pocket2_length")
pocket2.Reversed = True

sketch12 = body.newObject("Sketcher::SketchObject", "Sketch011")
sketch12.AttachmentSupport = (doc.getObject("XZ_Plane"), [""])
sketch12.MapMode = "FlatFace"
sketch12.AttachmentOffset = App.Placement(App.Vector(0, 0, -28), App.Rotation())
sketch12.addGeometry([
    Part.LineSegment(App.Vector(36.1, 93.7, 0), App.Vector(36.1, -79, 0)),
    Part.LineSegment(App.Vector(36.1, -79, 0), App.Vector(-46.5, -79, 0)),
    Part.LineSegment(App.Vector(-46.5, -79, 0), App.Vector(-46.5, 93.7, 0)),
    Part.LineSegment(App.Vector(-46.5, 93.7, 0), App.Vector(36.1, 93.7, 0)),
    Part.Circle(App.Vector(-37.3, 87.5, 0), App.Vector(0, 0, 1), 1.6),
    Part.Circle(App.Vector(-6.3, 87.5, 0), App.Vector(0, 0, 1), 1.6),
    Part.Circle(App.Vector(31.1, 87.5, 0), App.Vector(0, 0, 1), 1.6),
    Part.Circle(App.Vector(-37.3, -72.8, 0), App.Vector(0, 0, 1), 1.6),
    Part.Circle(App.Vector(-6.3, -72.8, 0), App.Vector(0, 0, 1), 1.6),
    Part.Circle(App.Vector(31.1, -72.8, 0), App.Vector(0, 0, 1), 1.6),
], False)
sketch12.addConstraint([
    Sketcher.Constraint("Coincident", 0, 2, 1, 1),
    Sketcher.Constraint("Coincident", 1, 2, 2, 1),
    Sketcher.Constraint("Coincident", 2, 2, 3, 1),
    Sketcher.Constraint("Coincident", 3, 2, 0, 1),
    Sketcher.Constraint("Vertical", 0),
    Sketcher.Constraint("Horizontal", 1),
    Sketcher.Constraint("Vertical", 2),
    Sketcher.Constraint("Horizontal", 3),
    Sketcher.Constraint("Equal", 4, 5),
    Sketcher.Constraint("Equal", 5, 6),
    Sketcher.Constraint("Equal", 6, 7),
    Sketcher.Constraint("Equal", 7, 8),
    Sketcher.Constraint("Equal", 8, 9),
    Sketcher.Constraint("Horizontal", 4, 3, 5, 3),
    Sketcher.Constraint("Horizontal", 5, 3, 6, 3),
    Sketcher.Constraint("Horizontal", 7, 3, 8, 3),
    Sketcher.Constraint("Horizontal", 8, 3, 9, 3),
    Sketcher.Constraint("Vertical", 4, 3, 7, 3),
    Sketcher.Constraint("Vertical", 5, 3, 8, 3),
    Sketcher.Constraint("Vertical", 6, 3, 9, 3),
    Sketcher.Constraint("Diameter", 4, 3.3),
    Sketcher.Constraint("DistanceX", 9, 3, 0, 2, 5.0),
    Sketcher.Constraint("DistanceX", 4, 3, 5, 3, 30.99),
    Sketcher.Constraint("DistanceX", 1, 2, 1, 1, 82.5383),
    Sketcher.Constraint("DistanceY", 0, 2, 0, 1, 172.7387),
    Sketcher.Constraint("DistanceX", 4, 3, -1, 1, 37.268),
    Sketcher.Constraint("DistanceY", 7, 3, -1, 1, 72.801),
    Sketcher.Constraint("DistanceY", 0, 2, -1, 1, 79.009),
    Sketcher.Constraint("DistanceY", 4, 3, 2, 2, 6.208),
    Sketcher.Constraint("DistanceX", -1, 1, 6, 3, 31.0847),
])
sketch12.setExpression("Constraints[20]", "Params.sketch12_diameter")
pocket3 = body.newObject("PartDesign::Pocket", "Pocket002")
pocket3.Profile = sketch12
pocket3.setExpression("Length", "Params.pocket3_length")
pocket3.Reversed = True

sketch13 = body.newObject("Sketcher::SketchObject", "Sketch012")
sketch13.AttachmentSupport = (doc.getObject("YZ_Plane"), [""])
sketch13.MapMode = "FlatFace"
sketch13.AttachmentOffset = App.Placement(App.Vector(0, 0, -41.4536), App.Rotation())
sketch13.addGeometry([
    Part.LineSegment(App.Vector(13, -76, 0), App.Vector(18, -76, 0)),
    Part.LineSegment(App.Vector(18, -76, 0), App.Vector(18, 91, 0)),
    Part.LineSegment(App.Vector(18, 91, 0), App.Vector(13, 91, 0)),
    Part.LineSegment(App.Vector(13, 91, 0), App.Vector(13, -76, 0)),
], False)
sketch13.addConstraint([
    Sketcher.Constraint("Coincident", 0, 2, 1, 1),
    Sketcher.Constraint("Coincident", 1, 2, 2, 1),
    Sketcher.Constraint("Coincident", 2, 2, 3, 1),
    Sketcher.Constraint("Coincident", 3, 2, 0, 1),
    Sketcher.Constraint("Horizontal", 0),
    Sketcher.Constraint("Vertical", 1),
    Sketcher.Constraint("Horizontal", 2),
    Sketcher.Constraint("Vertical", 3),
    Sketcher.Constraint("DistanceX", 0, 1, 0, 2, 5.0),
    Sketcher.Constraint("DistanceX", -1, 1, 0, 2, 18.0),
    Sketcher.Constraint("DistanceY", 1, 1, 1, 2, 166.7387),
    Sketcher.Constraint("DistanceY", 0, 2, -1, 1, 76.009),
])
sketch13.setExpression("Constraints[8]", "Params.sketch13_width")
pad10 = body.newObject("PartDesign::Pad", "Pad009")
pad10.Profile = sketch13
pad10.setExpression("Length", "Params.pad10_length")

sketch14 = body.newObject("Sketcher::SketchObject", "Sketch013")
sketch14.AttachmentSupport = (doc.getObject("XZ_Plane"), [""])
sketch14.MapMode = "FlatFace"
sketch14.AttachmentOffset = App.Placement(App.Vector(0, 0, -18), App.Rotation())
sketch14.addGeometry([
    Part.Circle(App.Vector(-11.4, -75.5, 0), App.Vector(0, 0, 1), 1.6),
    Part.Circle(App.Vector(-11.4, 90.2, 0), App.Vector(0, 0, 1), 1.6),
    Part.Circle(App.Vector(25.1, 90.2, 0), App.Vector(0, 0, 1), 1.6),
    Part.Circle(App.Vector(25.1, -75.5, 0), App.Vector(0, 0, 1), 1.6),
], False)
sketch14.addConstraint([
    Sketcher.Constraint("Equal", 0, 1),
    Sketcher.Constraint("Equal", 1, 2),
    Sketcher.Constraint("Equal", 2, 3),
    Sketcher.Constraint("Horizontal", 1, 3, 2, 3),
    Sketcher.Constraint("Horizontal", 0, 3, 3, 3),
    Sketcher.Constraint("Vertical", 0, 3, 1, 3),
    Sketcher.Constraint("Vertical", 2, 3, 3, 3),
    Sketcher.Constraint("Diameter", 0, 3.3),
    Sketcher.Constraint("DistanceX", 0, 3, -1, 1, 11.398),
    Sketcher.Constraint("DistanceY", -1, 1, 1, 3, 90.226),
    Sketcher.Constraint("DistanceY", 0, 3, -1, 1, 75.5053),
    Sketcher.Constraint("DistanceX", -1, 1, 2, 3, 25.0886),
])
sketch14.setExpression("Constraints[7]", "Params.sketch14_diameter")
pocket4 = body.newObject("PartDesign::Pocket", "Pocket003")
pocket4.Profile = sketch14
pocket4.setExpression("Length", "Params.pocket4_length")
pocket4.Reversed = True

sketch15 = body.newObject("Sketcher::SketchObject", "Sketch014")
sketch15.AttachmentSupport = (doc.getObject("XZ_Plane"), [""])
sketch15.MapMode = "FlatFace"
sketch15.AttachmentOffset = App.Placement(App.Vector(0, 0, -18), App.Rotation())
sketch15.addGeometry([
    Part.Circle(App.Vector(-30, 67, 0), App.Vector(0, 0, 1), 1.6),
    Part.Circle(App.Vector(-30, -52.3, 0), App.Vector(0, 0, 1), 1.6),
    Part.LineSegment(App.Vector(-19.5, 83.7, 0), App.Vector(-19.5, 72.5, 0)),
    Part.LineSegment(App.Vector(-19.5, 72.5, 0), App.Vector(-40.5, 72.5, 0)),
    Part.LineSegment(App.Vector(-40.5, 72.5, 0), App.Vector(-40.5, 83.7, 0)),
    Part.LineSegment(App.Vector(-40.5, 83.7, 0), App.Vector(-19.5, 83.7, 0)),
    Part.LineSegment(App.Vector(-40.5, -57.8, 0), App.Vector(-19.5, -57.8, 0)),
    Part.LineSegment(App.Vector(-19.5, -57.8, 0), App.Vector(-19.5, -69, 0)),
    Part.LineSegment(App.Vector(-19.5, -69, 0), App.Vector(-40.5, -69, 0)),
    Part.LineSegment(App.Vector(-40.5, -69, 0), App.Vector(-40.5, -57.8, 0)),
], False)
sketch15.addConstraint([
    Sketcher.Constraint("Coincident", 2, 2, 3, 1),
    Sketcher.Constraint("Coincident", 3, 2, 4, 1),
    Sketcher.Constraint("Coincident", 4, 2, 5, 1),
    Sketcher.Constraint("Coincident", 5, 2, 2, 1),
    Sketcher.Constraint("Coincident", 6, 2, 7, 1),
    Sketcher.Constraint("Coincident", 7, 2, 8, 1),
    Sketcher.Constraint("Coincident", 8, 2, 9, 1),
    Sketcher.Constraint("Coincident", 9, 2, 6, 1),
    Sketcher.Constraint("Vertical", 2),
    Sketcher.Constraint("Horizontal", 3),
    Sketcher.Constraint("Vertical", 4),
    Sketcher.Constraint("Horizontal", 5),
    Sketcher.Constraint("Horizontal", 6),
    Sketcher.Constraint("Vertical", 7),
    Sketcher.Constraint("Horizontal", 8),
    Sketcher.Constraint("Vertical", 9),
    Sketcher.Constraint("Equal", 0, 1),
    Sketcher.Constraint("Vertical", 0, 3, 1, 3),
    Sketcher.Constraint("Vertical", 5, 2, 6, 2),
    Sketcher.Constraint("Vertical", 4, 2, 8, 2),
    Sketcher.Constraint("Equal", 4, 7),
    Sketcher.Constraint("Diameter", 0, 3.3),
    Sketcher.Constraint("DistanceX", 3, 2, 3, 1, 21.0),
    Sketcher.Constraint("DistanceX", 0, 3, 2, 2, 10.5),
    Sketcher.Constraint("DistanceY", 2, 2, 2, 1, 11.205),
    Sketcher.Constraint("DistanceY", 6, 2, -1, 1, 57.823),
    Sketcher.Constraint("DistanceY", 7, 2, 2, 2, 141.572),
    Sketcher.Constraint("DistanceX", 0, 3, -1, 1, 29.9536),
    Sketcher.Constraint("DistanceY", -1, 1, 0, 3, 66.9763),
    Sketcher.Constraint("DistanceY", 1, 3, -1, 1, 52.2555),
])
sketch15.setExpression("Constraints[21]", "Params.sketch15_diameter")
sketch15.setExpression("Constraints[22]", "Params.sketch15_width")
pocket5 = body.newObject("PartDesign::Pocket", "Pocket004")
pocket5.Profile = sketch15
pocket5.setExpression("Length", "Params.pocket5_length")
pocket5.Reversed = True

doc.recompute()
